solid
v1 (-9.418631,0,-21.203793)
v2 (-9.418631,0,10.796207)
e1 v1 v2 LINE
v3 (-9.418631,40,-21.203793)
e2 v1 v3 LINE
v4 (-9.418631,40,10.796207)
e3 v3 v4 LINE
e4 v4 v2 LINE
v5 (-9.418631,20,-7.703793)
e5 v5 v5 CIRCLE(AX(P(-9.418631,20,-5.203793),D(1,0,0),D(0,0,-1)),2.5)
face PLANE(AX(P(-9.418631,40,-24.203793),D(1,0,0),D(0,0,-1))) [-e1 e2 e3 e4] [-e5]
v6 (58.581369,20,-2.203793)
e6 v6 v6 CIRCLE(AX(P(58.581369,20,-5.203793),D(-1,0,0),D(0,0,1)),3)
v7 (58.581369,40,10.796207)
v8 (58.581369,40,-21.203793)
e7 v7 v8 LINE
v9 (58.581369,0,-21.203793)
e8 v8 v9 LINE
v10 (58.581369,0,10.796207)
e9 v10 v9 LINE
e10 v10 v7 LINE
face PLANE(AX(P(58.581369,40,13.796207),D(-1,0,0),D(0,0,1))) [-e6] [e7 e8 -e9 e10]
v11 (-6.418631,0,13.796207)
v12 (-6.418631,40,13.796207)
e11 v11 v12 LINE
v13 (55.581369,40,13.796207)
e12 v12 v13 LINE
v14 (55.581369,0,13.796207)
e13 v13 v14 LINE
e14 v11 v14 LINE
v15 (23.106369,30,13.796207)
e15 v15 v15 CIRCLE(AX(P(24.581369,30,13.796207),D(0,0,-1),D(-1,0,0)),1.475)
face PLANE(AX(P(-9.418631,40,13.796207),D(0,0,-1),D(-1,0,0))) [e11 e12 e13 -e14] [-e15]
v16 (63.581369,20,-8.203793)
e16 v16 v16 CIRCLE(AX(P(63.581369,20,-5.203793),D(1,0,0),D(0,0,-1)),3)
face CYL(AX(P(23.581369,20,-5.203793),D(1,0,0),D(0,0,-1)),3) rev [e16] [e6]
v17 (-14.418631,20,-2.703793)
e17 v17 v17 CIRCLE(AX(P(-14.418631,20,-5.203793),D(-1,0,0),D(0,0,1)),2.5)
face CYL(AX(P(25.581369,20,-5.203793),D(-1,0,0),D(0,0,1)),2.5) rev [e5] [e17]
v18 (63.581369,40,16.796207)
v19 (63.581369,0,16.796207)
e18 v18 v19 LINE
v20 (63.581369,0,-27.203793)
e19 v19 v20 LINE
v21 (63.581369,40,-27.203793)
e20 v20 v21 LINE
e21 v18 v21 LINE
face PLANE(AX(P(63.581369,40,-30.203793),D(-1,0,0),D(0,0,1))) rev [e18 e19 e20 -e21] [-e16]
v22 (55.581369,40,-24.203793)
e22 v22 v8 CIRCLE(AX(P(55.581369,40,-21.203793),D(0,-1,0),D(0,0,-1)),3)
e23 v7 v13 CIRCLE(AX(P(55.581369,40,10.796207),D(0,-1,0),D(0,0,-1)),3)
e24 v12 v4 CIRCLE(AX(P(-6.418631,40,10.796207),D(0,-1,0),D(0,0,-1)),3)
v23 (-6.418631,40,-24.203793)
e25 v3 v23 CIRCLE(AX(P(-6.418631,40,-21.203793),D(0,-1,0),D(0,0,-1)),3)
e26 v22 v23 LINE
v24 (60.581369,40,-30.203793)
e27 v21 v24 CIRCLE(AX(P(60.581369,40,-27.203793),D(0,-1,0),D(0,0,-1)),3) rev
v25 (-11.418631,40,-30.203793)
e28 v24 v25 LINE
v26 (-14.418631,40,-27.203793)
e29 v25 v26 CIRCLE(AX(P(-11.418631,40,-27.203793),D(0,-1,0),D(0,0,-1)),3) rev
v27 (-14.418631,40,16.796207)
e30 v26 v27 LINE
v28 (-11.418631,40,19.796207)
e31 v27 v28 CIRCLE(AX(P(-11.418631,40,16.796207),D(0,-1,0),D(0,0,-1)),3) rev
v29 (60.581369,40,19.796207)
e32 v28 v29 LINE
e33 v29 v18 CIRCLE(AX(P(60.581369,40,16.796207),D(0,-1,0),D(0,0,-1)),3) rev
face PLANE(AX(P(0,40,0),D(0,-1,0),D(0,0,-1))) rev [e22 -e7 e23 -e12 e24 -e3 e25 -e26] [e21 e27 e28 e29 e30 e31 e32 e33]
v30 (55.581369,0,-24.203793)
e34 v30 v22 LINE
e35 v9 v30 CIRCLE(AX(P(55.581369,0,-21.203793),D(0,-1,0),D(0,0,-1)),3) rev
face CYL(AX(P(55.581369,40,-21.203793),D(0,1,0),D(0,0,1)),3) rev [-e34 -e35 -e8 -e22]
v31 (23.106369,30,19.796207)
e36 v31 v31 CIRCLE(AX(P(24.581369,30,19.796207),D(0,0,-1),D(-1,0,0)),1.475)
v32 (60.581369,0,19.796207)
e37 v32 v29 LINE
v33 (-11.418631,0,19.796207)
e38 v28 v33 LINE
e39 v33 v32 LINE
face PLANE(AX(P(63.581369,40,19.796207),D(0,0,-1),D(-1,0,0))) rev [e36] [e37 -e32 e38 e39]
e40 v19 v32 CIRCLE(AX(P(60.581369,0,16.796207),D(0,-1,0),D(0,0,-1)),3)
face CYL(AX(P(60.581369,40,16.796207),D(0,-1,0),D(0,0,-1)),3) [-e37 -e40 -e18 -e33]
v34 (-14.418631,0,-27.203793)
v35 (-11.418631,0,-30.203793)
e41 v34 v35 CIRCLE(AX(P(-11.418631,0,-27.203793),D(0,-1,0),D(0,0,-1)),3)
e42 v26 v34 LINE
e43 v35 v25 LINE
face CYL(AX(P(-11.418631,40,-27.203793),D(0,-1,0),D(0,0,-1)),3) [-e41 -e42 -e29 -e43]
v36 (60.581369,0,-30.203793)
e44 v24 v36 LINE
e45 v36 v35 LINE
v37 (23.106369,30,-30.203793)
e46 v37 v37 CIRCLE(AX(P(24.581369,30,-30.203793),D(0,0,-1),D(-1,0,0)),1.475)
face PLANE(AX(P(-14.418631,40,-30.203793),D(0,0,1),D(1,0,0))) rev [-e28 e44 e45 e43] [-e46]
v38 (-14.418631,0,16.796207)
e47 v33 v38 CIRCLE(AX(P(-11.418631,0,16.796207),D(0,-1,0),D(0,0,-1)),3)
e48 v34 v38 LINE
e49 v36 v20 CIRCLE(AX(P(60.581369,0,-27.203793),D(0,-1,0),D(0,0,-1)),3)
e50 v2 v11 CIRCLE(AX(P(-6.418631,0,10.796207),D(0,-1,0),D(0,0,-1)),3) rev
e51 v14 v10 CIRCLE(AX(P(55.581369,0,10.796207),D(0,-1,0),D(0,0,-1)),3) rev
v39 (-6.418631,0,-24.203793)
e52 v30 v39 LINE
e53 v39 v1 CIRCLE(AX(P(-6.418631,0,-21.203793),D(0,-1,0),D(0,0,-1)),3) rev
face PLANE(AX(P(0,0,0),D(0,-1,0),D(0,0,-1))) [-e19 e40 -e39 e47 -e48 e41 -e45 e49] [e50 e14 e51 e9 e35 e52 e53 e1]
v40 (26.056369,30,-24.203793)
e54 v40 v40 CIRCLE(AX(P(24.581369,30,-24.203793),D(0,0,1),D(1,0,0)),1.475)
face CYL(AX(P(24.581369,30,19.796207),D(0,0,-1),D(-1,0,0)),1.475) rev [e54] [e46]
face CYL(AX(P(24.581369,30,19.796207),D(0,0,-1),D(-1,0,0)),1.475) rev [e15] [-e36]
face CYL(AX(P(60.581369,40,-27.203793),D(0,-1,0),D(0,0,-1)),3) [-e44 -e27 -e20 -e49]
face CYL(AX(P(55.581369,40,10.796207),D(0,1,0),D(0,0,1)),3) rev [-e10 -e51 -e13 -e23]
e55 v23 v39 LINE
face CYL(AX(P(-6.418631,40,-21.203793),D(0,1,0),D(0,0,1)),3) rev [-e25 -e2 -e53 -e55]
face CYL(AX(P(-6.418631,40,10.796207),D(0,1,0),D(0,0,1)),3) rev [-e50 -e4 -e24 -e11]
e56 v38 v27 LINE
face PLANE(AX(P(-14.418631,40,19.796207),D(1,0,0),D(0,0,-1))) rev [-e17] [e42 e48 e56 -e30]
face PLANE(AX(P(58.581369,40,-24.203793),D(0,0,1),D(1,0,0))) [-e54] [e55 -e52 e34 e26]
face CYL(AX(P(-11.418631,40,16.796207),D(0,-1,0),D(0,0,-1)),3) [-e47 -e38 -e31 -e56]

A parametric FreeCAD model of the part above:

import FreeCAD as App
import Part
import Sketcher
from FreeCAD import Vector
Q = App.Units.Quantity


def edges_at(feature, points):
    """Names of the edges that pass closest to the given points."""
    edges = feature.Shape.Edges
    near = lambda p: min(range(len(edges)), key=lambda i: edges[i].distToShape(Part.Vertex(*p))[0])
    return sorted({f"Edge{near(p) + 1}" for p in points})

doc = App.newDocument("Part")
params = doc.addObject("Spreadsheet::Sheet", "Params")
for row, (alias, value) in enumerate([
    ("sketch1_width", "78 mm"),
    ("sketch1_width2", "68 mm"),
    ("sketch1_height", "50 mm"),
    ("sketch1_height2", "38 mm"),
    ("pad1_length", "40 mm"),
    ("fillet_radius", "3 mm"),
    ("sketch2_diameter", "6 mm"),
    ("pocket1_length", "40 mm"),
    ("sketch3_diameter", "5 mm"),
    ("pocket2_length", "40 mm"),
    ("sketch4_diameter", "2.95 mm"),
    ("pocket3_length", "50 mm"),
], start=1):
    params.set(f"A{row}", alias)
    params.set(f"B{row}", "=" + value)
    params.setAlias(f"B{row}", alias)

body = doc.addObject("PartDesign::Body", "Body")

sketch1 = body.newObject("Sketcher::SketchObject", "Sketch")
sketch1.AttachmentSupport = (doc.getObject("XZ_Plane"), [""])
sketch1.MapMode = "FlatFace"
sketch1.addGeometry([
    Part.LineSegment(Vector(-14.418631, -30.203793, 0), Vector(-14.418631, 19.796207, 0)),
    Part.LineSegment(Vector(-14.418631, 19.796207, 0), Vector(63.581369, 19.796207, 0)),
    Part.LineSegment(Vector(63.581369, 19.796207, 0), Vector(63.581369, -30.203793, 0)),
    Part.LineSegment(Vector(63.581369, -30.203793, 0), Vector(-14.418631, -30.203793, 0)),
    Part.LineSegment(Vector(58.581369, 13.796207, 0), Vector(-9.418631, 13.796207, 0)),
    Part.LineSegment(Vector(-9.418631, 13.796207, 0), Vector(-9.418631, -24.203793, 0)),
    Part.LineSegment(Vector(-9.418631, -24.203793, 0), Vector(58.581369, -24.203793, 0)),
    Part.LineSegment(Vector(58.581369, -24.203793, 0), Vector(58.581369, 13.796207, 0)),
], False)
sketch1.addConstraint([
    Sketcher.Constraint("Coincident", 0, 2, 1, 1),
    Sketcher.Constraint("Coincident", 1, 2, 2, 1),
    Sketcher.Constraint("Coincident", 2, 2, 3, 1),
    Sketcher.Constraint("Coincident", 3, 2, 0, 1),
    Sketcher.Constraint("Coincident", 4, 2, 5, 1),
    Sketcher.Constraint("Coincident", 5, 2, 6, 1),
    Sketcher.Constraint("Coincident", 6, 2, 7, 1),
    Sketcher.Constraint("Coincident", 7, 2, 4, 1),
    Sketcher.Constraint("Vertical", 0),
    Sketcher.Constraint("Horizontal", 1),
    Sketcher.Constraint("Vertical", 2),
    Sketcher.Constraint("Horizontal", 3),
    Sketcher.Constraint("Horizontal", 4),
    Sketcher.Constraint("Vertical", 5),
    Sketcher.Constraint("Horizontal", 6),
    Sketcher.Constraint("Vertical", 7),
    Sketcher.Constraint("DistanceX", 1, 1, 1, 2, Q("78 mm")),
    Sketcher.Constraint("DistanceX", 4, 2, 4, 1, Q("68 mm")),
    Sketcher.Constraint("DistanceY", 0, 1, 0, 2, Q("50 mm")),
    Sketcher.Constraint("DistanceY", 5, 2, 5, 1, Q("38 mm")),
    Sketcher.Constraint("DistanceX", 0, 2, 4, 2, Q("5 mm")),
    Sketcher.Constraint("DistanceY", 4, 2, 0, 2, Q("6 mm")),
    Sketcher.Constraint("DistanceX", 0, 2, -1, 1, Q("14.418631 mm")),
    Sketcher.Constraint("DistanceY", -1, 1, 0, 2, Q("19.796207 mm")),
])
sketch1.setExpression("Constraints[16]", "Params.sketch1_width")
sketch1.setExpression("Constraints[17]", "Params.sketch1_width2")
sketch1.setExpression("Constraints[18]", "Params.sketch1_height")
sketch1.setExpression("Constraints[19]", "Params.sketch1_height2")
pad1 = body.newObject("PartDesign::Pad", "Pad")
pad1.Profile = sketch1
pad1.setExpression("Length", "Params.pad1_length")
pad1.Reversed = True
doc.recompute()

fillet = body.newObject("PartDesign::Fillet", "Fillet")
fillet.Base = (pad1, edges_at(pad1, [
    (58.581, 20, -24.204),
    (-9.419, 20, -24.204),
    (-9.419, 20, 13.796),
    (58.581, 20, 13.796),
    (-14.419, 20, 19.796),
    (-14.419, 20, -30.204),
    (63.581, 20, -30.204),
    (63.581, 20, 19.796),
]))
fillet.setExpression("Radius", "Params.fillet_radius")

sketch2 = body.newObject("Sketcher::SketchObject", "Sketch001")
sketch2.AttachmentSupport = (doc.getObject("YZ_Plane"), [""])
sketch2.MapMode = "FlatFace"
sketch2.AttachmentOffset = App.Placement(Vector(0, 0, 63.581369), App.Rotation())
sketch2.addGeometry(Part.Circle(Vector(20, -5.203793, 0), Vector(0, 0, 1), 3), False)
sketch2.addConstraint([
    Sketcher.Constraint("Diameter", 0, Q("6 mm")),
    Sketcher.Constraint("DistanceX", -1, 1, 0, 3, Q("20 mm")),
    Sketcher.Constraint("DistanceY", 0, 3, -1, 1, Q("5.203793 mm")),
])
sketch2.setExpression("Constraints[0]", "Params.sketch2_diameter")
pocket1 = body.newObject("PartDesign::Pocket", "Pocket")
pocket1.Profile = sketch2
pocket1.setExpression("Length", "Params.pocket1_length")

sketch3 = body.newObject("Sketcher::SketchObject", "Sketch002")
sketch3.AttachmentSupport = (doc.getObject("YZ_Plane"), [""])
sketch3.MapMode = "FlatFace"
sketch3.AttachmentOffset = App.Placement(Vector(0, 0, -14.418631), App.Rotation())
sketch3.addGeometry(Part.Circle(Vector(20, -5.203793, 0), Vector(0, 0, 1), 2.5), False)
sketch3.addConstraint([
    Sketcher.Constraint("Diameter", 0, Q("5 mm")),
    Sketcher.Constraint("DistanceX", -1, 1, 0, 3, Q("20 mm")),
    Sketcher.Constraint("DistanceY", 0, 3, -1, 1, Q("5.203793 mm")),
])
sketch3.setExpression("Constraints[0]", "Params.sketch3_diameter")
pocket2 = body.newObject("PartDesign::Pocket", "Pocket001")
pocket2.Profile = sketch3
pocket2.setExpression("Length", "Params.pocket2_length")
pocket2.Reversed = True

sketch4 = body.newObject("Sketcher::SketchObject", "Sketch003")
sketch4.AttachmentSupport = (doc.getObject("XY_Plane"), [""])
sketch4.MapMode = "FlatFace"
sketch4.AttachmentOffset = App.Placement(Vector(0, 0, -30.203793), App.Rotation())
sketch4.addGeometry(Part.Circle(Vector(24.581369, 30, 0), Vector(0, 0, 1), 1.475), False)
sketch4.addConstraint([
    Sketcher.Constraint("Diameter", 0, Q("2.95 mm")),
    Sketcher.Constraint("DistanceY", -1, 1, 0, 3, Q("30 mm")),
    Sketcher.Constraint("DistanceX", -1, 1, 0, 3, Q("24.581369 mm")),
])
sketch4.setExpression("Constraints[0]", "Params.sketch4_diameter")
pocket3 = body.newObject("PartDesign::Pocket", "Pocket002")
pocket3.Profile = sketch4
pocket3.setExpression("Length", "Params.pocket3_length")
pocket3.Reversed = True

doc.recompute()
